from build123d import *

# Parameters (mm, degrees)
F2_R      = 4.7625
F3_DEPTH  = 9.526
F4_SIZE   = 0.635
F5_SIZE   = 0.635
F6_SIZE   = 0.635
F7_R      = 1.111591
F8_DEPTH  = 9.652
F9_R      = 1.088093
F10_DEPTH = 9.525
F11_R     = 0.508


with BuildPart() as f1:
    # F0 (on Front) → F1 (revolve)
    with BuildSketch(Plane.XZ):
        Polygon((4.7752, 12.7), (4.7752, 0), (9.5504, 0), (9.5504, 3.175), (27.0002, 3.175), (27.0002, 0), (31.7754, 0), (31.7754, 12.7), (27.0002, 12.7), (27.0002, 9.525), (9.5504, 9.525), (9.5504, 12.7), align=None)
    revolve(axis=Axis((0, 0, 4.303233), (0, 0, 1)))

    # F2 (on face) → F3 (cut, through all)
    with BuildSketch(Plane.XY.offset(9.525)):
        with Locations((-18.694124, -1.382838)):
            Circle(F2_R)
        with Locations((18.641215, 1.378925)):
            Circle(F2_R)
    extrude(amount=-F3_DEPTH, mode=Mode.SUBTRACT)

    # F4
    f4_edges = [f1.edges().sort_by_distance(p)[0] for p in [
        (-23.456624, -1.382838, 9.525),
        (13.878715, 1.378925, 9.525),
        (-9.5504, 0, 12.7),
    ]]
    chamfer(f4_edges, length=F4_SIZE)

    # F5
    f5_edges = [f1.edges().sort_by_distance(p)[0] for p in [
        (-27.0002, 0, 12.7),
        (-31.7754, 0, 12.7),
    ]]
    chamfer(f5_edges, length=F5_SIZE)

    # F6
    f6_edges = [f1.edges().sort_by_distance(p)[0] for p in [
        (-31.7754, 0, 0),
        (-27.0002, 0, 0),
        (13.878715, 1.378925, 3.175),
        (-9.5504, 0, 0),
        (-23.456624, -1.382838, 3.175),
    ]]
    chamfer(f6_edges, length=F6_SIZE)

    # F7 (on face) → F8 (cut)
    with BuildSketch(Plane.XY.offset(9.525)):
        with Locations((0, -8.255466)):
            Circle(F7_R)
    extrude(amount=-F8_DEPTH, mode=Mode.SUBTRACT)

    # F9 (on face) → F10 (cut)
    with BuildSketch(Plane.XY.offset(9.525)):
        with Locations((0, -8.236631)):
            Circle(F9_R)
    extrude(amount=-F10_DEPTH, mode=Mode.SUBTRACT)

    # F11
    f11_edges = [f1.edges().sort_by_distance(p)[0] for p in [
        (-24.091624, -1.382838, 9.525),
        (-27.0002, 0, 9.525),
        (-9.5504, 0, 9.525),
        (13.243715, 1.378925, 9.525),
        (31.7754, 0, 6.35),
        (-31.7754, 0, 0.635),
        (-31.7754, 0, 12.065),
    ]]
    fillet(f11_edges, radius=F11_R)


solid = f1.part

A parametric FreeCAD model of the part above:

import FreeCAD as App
import Part
import Sketcher
Q = App.Units.Quantity


def edges_at(feature, points):
    """Names of the edges that pass closest to the given points."""
    edges = feature.Shape.Edges
    near = lambda p: min(range(len(edges)), key=lambda i: edges[i].distToShape(Part.Vertex(*p))[0])
    return sorted({f"Edge{near(p) + 1}" for p in points})

doc = App.newDocument("Part")
body = doc.addObject("PartDesign::Body", "Body")

# Sketch on XZ plane
sketch1 = doc.addObject("Sketcher::SketchObject", "Sketch")
body.addObject(sketch1)
sketch1.AttachmentSupport = (doc.XZ_Plane, [""])
sketch1.MapMode = "FlatFace"
sketch1.addGeometry([
    Part.LineSegment(App.Vector(4.7752, 12.7, 0), App.Vector(4.7752, 0, 0)),  # 0
    Part.LineSegment(App.Vector(4.7752, 0, 0), App.Vector(9.5504, 0, 0)),  # 1
    Part.LineSegment(App.Vector(9.5504, 0, 0), App.Vector(9.5504, 3.175, 0)),  # 2
    Part.LineSegment(App.Vector(9.5504, 3.175, 0), App.Vector(27.0002, 3.175, 0)),  # 3
    Part.LineSegment(App.Vector(27.0002, 3.175, 0), App.Vector(27.0002, 0, 0)),  # 4
    Part.LineSegment(App.Vector(27.0002, 0, 0), App.Vector(31.7754, 0, 0)),  # 5
    Part.LineSegment(App.Vector(31.7754, 0, 0), App.Vector(31.7754, 12.7, 0)),  # 6
    Part.LineSegment(App.Vector(31.7754, 12.7, 0), App.Vector(27.0002, 12.7, 0)),  # 7
    Part.LineSegment(App.Vector(27.0002, 12.7, 0), App.Vector(27.0002, 9.525, 0)),  # 8
    Part.LineSegment(App.Vector(27.0002, 9.525, 0), App.Vector(9.5504, 9.525, 0)),  # 9
    Part.LineSegment(App.Vector(9.5504, 9.525, 0), App.Vector(9.5504, 12.7, 0)),  # 10
    Part.LineSegment(App.Vector(9.5504, 12.7, 0), App.Vector(4.7752, 12.7, 0)),  # 11
], False)
sketch1.addConstraint([
    Sketcher.Constraint("Coincident", 0, 2, 1, 1),
    Sketcher.Constraint("Coincident", 1, 2, 2, 1),
    Sketcher.Constraint("Coincident", 2, 2, 3, 1),
    Sketcher.Constraint("Coincident", 3, 2, 4, 1),
    Sketcher.Constraint("Coincident", 4, 2, 5, 1),
    Sketcher.Constraint("Coincident", 5, 2, 6, 1),
    Sketcher.Constraint("Coincident", 6, 2, 7, 1),
    Sketcher.Constraint("Coincident", 7, 2, 8, 1),
    Sketcher.Constraint("Coincident", 8, 2, 9, 1),
    Sketcher.Constraint("Coincident", 9, 2, 10, 1),
    Sketcher.Constraint("Coincident", 10, 2, 11, 1),
    Sketcher.Constraint("Coincident", 11, 2, 0, 1),
    Sketcher.Constraint("Vertical", 0),
    Sketcher.Constraint("Horizontal", 1),
    Sketcher.Constraint("Vertical", 2),
    Sketcher.Constraint("Horizontal", 3),
    Sketcher.Constraint("Vertical", 4),
    Sketcher.Constraint("Horizontal", 5),
    Sketcher.Constraint("Vertical", 6),
    Sketcher.Constraint("Horizontal", 7),
    Sketcher.Constraint("Vertical", 8),
    Sketcher.Constraint("Horizontal", 9),
    Sketcher.Constraint("Vertical", 10),
    Sketcher.Constraint("Horizontal", 11),
    Sketcher.Constraint("PointOnObject", 0, 2, -1),
    Sketcher.Constraint("PointOnObject", 4, 2, -1),
    Sketcher.Constraint("Horizontal", 7, 2, 10, 2),
    Sketcher.Constraint("Vertical", 4, 2, 7, 2),
    Sketcher.Constraint("Vertical", 2, 2, 9, 2),
    Sketcher.Constraint("Equal", 1, 5),
    Sketcher.Constraint("Equal", 4, 8),
    Sketcher.Constraint("DistanceY", 0, 2, 0, 1, Q("0.5 in")),
    Sketcher.Constraint("DistanceX", 1, 1, 1, 2, Q("0.188 in")),
    Sketcher.Constraint("DistanceX", 3, 1, 3, 2, Q("0.687 in")),
    Sketcher.Constraint("DistanceY", 2, 1, 2, 2, Q("0.125 in")),
    Sketcher.Constraint("DistanceX", -1, 1, 0, 2, Q("0.188 in")),
])
revolution = doc.addObject("PartDesign::Revolution", "Revolution")
body.addObject(revolution)
revolution.Profile = sketch1
revolution.ReferenceAxis = (sketch1, ["V_Axis"])
revolution.Angle = 360

# Sketch on XY plane
sketch2 = doc.addObject("Sketcher::SketchObject", "Sketch001")
body.addObject(sketch2)
sketch2.AttachmentSupport = (doc.XY_Plane, [""])
sketch2.MapMode = "FlatFace"
sketch2.AttachmentOffset = App.Placement(App.Vector(0, 0, 0.375 * 25.4), App.Rotation())
sketch2.addGeometry([
    Part.Circle(App.Vector(-18.694124, -1.382838, 0), App.Vector(0, 0, 1), 4.7625),
    Part.Circle(App.Vector(18.641215, 1.378925, 0), App.Vector(0, 0, 1), 4.7625),
], False)
sketch2.addConstraint([
    Sketcher.Constraint("Equal", 0, 1),
    Sketcher.Constraint("Diameter", 0, Q("0.375 in")),
    Sketcher.Constraint("DistanceX", 0, 3, 1, 3, Q("37.335339 mm")),
    Sketcher.Constraint("DistanceX", 0, 3, -1, 1, Q("18.694124 mm")),
    Sketcher.Constraint("DistanceY", 0, 3, -1, 1, Q("1.382838 mm")),
    Sketcher.Constraint("DistanceY", -1, 1, 1, 3, Q("1.378925 mm")),
])
pocket1 = doc.addObject("PartDesign::Pocket", "Pocket")
body.addObject(pocket1)
pocket1.Profile = sketch2
pocket1.Type = "ThroughAll"
doc.recompute()

chamfer = doc.addObject("PartDesign::Chamfer", "Chamfer")
body.addObject(chamfer)
chamfer.Base = (pocket1, edges_at(pocket1, [(-23.457, -1.383, 9.525), (13.879, 1.379, 9.525), (-9.55, 0, 12.7)]))
chamfer.Size = Q("0.025 in")
doc.recompute()

chamfer2 = doc.addObject("PartDesign::Chamfer", "Chamfer001")
body.addObject(chamfer2)
chamfer2.Base = (chamfer, edges_at(chamfer, [(-27, 0, 12.7), (-31.775, 0, 12.7)]))
chamfer2.Size = Q("0.025 in")
doc.recompute()

chamfer3 = doc.addObject("PartDesign::Chamfer", "Chamfer002")
body.addObject(chamfer3)
chamfer3.Base = (chamfer2, edges_at(chamfer2, [
    (-31.775, 0, 0),
    (-27, 0, 0),
    (13.879, 1.379, 3.175),
    (-9.55, 0, 0),
    (-23.457, -1.383, 3.175),
]))
chamfer3.Size = Q("0.025 in")

# Sketch on XY plane
sketch3 = doc.addObject("Sketcher::SketchObject", "Sketch002")
body.addObject(sketch3)
sketch3.AttachmentSupport = (doc.XY_Plane, [""])
sketch3.MapMode = "FlatFace"
sketch3.AttachmentOffset = App.Placement(App.Vector(0, 0, 0.375 * 25.4), App.Rotation())
sketch3.addGeometry(Part.Circle(App.Vector(0, -8.255466, 0), App.Vector(0, 0, 1), 1.111591), False)
sketch3.addConstraint([
    Sketcher.Constraint("PointOnObject", 0, 3, -2),
    Sketcher.Constraint("Diameter", 0, Q("2.223182 mm")),
    Sketcher.Constraint("DistanceY", 0, 3, -1, 1, Q("8.255466 mm")),
])
pocket2 = doc.addObject("PartDesign::Pocket", "Pocket001")
body.addObject(pocket2)
pocket2.Profile = sketch3
pocket2.Length = Q("0.38 in")

# Sketch on XY plane
sketch4 = doc.addObject("Sketcher::SketchObject", "Sketch003")
body.addObject(sketch4)
sketch4.AttachmentSupport = (doc.XY_Plane, [""])
sketch4.MapMode = "FlatFace"
sketch4.AttachmentOffset = App.Placement(App.Vector(0, 0, 0.375 * 25.4), App.Rotation())
sketch4.addGeometry(Part.Circle(App.Vector(0, -8.236631, 0), App.Vector(0, 0, 1), 1.088093), False)
sketch4.addConstraint([
    Sketcher.Constraint("PointOnObject", 0, 3, -2),
    Sketcher.Constraint("Diameter", 0, Q("2.176186 mm")),
    Sketcher.Constraint("DistanceY", 0, 3, -1, 1, Q("8.236631 mm")),
])
pocket3 = doc.addObject("PartDesign::Pocket", "Pocket002")
body.addObject(pocket3)
pocket3.Profile = sketch4
pocket3.Length = Q("0.375 in")
doc.recompute()

fillet = doc.addObject("PartDesign::Fillet", "Fillet")
body.addObject(fillet)
fillet.Base = (pocket3, edges_at(pocket3, [
    (-24.092, -1.383, 9.525),
    (-27, 0, 9.525),
    (-9.55, 0, 9.525),
    (13.244, 1.379, 9.525),
    (31.775, 0, 6.35),
    (-31.775, 0, 0.635),
    (-31.775, 0, 12.065),
]))
fillet.Radius = Q("0.02 in")

doc.recompute()
